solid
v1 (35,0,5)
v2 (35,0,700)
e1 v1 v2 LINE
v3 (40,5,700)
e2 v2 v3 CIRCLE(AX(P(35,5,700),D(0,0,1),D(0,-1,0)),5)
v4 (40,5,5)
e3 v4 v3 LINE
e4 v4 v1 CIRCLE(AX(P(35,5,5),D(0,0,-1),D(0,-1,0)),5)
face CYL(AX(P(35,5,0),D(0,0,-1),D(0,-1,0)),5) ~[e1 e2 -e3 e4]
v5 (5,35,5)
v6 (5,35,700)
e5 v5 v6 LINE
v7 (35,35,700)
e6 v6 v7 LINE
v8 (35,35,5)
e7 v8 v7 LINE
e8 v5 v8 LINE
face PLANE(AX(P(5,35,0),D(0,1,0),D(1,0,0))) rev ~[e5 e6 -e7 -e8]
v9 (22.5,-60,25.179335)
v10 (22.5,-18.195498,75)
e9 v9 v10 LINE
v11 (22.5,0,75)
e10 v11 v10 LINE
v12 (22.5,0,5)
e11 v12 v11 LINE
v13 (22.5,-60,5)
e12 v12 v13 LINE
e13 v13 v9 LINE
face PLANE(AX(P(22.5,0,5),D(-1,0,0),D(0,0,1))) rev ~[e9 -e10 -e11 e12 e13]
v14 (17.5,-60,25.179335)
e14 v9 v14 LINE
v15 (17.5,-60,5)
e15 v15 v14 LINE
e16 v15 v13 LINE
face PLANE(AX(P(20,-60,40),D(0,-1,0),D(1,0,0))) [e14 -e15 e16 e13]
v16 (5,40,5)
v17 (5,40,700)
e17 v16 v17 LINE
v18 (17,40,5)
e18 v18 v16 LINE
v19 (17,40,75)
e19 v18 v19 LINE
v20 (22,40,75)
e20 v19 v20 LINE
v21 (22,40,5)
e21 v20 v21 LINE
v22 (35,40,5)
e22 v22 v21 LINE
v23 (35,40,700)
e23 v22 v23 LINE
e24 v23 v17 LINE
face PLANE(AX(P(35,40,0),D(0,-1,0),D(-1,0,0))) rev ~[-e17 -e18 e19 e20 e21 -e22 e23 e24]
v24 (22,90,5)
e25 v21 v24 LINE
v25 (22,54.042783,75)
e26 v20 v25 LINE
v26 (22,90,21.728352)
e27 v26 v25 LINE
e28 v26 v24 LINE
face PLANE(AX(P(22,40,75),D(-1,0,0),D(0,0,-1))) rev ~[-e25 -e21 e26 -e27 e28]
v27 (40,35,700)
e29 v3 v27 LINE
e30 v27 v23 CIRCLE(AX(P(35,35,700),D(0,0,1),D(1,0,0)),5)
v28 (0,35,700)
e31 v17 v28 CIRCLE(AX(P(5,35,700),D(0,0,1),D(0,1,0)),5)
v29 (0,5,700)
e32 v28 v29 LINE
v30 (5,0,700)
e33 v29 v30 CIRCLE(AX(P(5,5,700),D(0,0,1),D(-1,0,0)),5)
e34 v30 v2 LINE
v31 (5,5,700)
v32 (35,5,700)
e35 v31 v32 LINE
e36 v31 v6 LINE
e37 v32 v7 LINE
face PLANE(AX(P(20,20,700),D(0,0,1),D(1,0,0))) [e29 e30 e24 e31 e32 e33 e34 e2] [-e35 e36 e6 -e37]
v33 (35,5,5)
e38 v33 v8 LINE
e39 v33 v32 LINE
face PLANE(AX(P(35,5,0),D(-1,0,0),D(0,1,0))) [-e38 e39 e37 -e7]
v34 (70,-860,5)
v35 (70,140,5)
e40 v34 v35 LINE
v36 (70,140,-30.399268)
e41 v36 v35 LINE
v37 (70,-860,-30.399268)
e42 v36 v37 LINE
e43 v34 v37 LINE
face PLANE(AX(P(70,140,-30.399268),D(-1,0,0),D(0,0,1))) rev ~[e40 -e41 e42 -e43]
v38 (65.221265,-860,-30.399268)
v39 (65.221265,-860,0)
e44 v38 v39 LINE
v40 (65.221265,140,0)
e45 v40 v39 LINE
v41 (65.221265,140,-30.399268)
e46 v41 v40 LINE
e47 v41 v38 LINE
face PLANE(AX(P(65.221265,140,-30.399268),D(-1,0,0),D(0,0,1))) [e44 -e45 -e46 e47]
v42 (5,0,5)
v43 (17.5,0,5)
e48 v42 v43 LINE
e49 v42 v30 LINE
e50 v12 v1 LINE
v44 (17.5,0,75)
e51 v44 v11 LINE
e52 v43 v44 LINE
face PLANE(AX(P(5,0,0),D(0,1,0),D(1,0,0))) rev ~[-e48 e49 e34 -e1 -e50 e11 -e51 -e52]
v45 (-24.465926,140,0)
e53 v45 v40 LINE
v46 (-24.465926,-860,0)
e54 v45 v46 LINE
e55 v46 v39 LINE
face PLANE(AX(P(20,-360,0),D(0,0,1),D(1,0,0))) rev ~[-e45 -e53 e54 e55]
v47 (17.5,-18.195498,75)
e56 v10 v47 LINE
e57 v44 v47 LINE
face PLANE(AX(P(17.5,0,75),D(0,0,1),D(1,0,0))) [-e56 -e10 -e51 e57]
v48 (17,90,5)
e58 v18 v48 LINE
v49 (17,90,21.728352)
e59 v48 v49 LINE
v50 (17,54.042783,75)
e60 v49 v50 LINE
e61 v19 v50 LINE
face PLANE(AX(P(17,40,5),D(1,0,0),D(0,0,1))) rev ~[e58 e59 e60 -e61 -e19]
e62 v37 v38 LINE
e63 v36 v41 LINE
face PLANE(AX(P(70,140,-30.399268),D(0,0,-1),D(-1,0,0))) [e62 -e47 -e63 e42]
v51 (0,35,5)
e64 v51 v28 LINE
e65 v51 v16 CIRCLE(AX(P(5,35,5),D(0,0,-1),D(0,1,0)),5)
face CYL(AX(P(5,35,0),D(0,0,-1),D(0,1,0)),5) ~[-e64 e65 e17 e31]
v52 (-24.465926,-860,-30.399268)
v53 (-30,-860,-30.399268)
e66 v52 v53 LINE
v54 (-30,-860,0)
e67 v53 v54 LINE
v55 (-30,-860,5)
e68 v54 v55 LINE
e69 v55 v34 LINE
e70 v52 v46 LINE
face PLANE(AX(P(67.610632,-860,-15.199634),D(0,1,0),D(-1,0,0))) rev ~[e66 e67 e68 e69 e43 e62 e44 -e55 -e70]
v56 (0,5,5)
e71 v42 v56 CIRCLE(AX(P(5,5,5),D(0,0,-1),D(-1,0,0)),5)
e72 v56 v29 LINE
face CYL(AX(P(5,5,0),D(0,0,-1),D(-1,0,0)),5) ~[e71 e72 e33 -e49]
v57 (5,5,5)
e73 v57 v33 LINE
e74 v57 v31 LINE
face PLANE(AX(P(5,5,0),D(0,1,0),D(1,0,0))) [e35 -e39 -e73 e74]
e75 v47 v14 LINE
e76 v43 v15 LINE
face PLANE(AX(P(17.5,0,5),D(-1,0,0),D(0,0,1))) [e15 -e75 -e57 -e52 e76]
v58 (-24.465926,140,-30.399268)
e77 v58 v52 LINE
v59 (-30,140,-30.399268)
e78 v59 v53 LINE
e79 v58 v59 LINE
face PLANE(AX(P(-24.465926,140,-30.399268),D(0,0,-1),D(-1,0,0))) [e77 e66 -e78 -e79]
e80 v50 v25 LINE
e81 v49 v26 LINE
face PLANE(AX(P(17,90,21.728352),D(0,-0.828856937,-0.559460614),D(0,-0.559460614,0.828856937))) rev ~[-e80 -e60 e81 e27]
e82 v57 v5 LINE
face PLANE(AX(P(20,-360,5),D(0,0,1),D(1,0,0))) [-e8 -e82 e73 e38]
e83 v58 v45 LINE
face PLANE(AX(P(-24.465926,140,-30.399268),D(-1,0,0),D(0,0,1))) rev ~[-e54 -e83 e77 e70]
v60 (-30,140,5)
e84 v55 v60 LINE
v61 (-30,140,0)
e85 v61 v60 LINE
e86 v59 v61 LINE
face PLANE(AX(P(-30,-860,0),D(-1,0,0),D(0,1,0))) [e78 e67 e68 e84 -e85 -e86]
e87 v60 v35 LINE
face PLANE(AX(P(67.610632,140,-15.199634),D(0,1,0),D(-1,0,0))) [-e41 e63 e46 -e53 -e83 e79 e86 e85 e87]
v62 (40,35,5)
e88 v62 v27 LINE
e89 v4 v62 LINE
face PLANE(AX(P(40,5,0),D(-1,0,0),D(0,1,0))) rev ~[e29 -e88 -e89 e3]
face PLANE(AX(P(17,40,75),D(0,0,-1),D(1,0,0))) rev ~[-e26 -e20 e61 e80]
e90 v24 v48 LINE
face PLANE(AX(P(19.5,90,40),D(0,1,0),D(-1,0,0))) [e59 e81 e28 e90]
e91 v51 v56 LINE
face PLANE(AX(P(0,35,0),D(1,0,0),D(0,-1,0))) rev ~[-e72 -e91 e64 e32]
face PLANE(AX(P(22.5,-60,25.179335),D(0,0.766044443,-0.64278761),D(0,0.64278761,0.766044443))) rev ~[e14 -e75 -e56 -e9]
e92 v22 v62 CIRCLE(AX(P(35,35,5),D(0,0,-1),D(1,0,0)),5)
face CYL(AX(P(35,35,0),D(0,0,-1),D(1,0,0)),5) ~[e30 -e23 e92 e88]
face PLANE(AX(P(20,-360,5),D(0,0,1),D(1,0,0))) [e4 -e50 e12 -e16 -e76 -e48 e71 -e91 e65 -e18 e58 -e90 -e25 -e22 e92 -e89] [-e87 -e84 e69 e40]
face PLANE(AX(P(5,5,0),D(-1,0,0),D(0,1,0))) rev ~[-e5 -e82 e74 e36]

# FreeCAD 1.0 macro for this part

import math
import FreeCAD as App
import Part
import Sketcher

V = App.Vector
Q = App.Units.Quantity


def add_polygon(sketch, points):
    """Adds a closed chain of lines whose ends are joined by coincident constraints."""
    first, n = sketch.GeometryCount, len(points)
    for a, b in zip(points, points[1:] + points[:1]):
        sketch.addGeometry(Part.LineSegment(App.Vector(*a, 0), App.Vector(*b, 0)), False)
    for i in range(n):
        sketch.addConstraint(Sketcher.Constraint("Coincident", first + i, 2, first + (i + 1) % n, 1))

doc = App.newDocument("Part")
params = doc.addObject("Spreadsheet::Sheet", "Params")
for row, (alias, value) in enumerate([
    ("sketch1_radius", "5 mm"),
    ("sketch1_width", "30 mm"),
    ("pad1_length", "700 mm"),
    ("sketch2_width", "100 mm"),
    ("sketch2_height", "1000 mm"),
    ("pad2_length", "5 mm"),
    ("pad3_length", "1000 mm"),
    ("sketch4_width", "5 mm"),
    ("sketch4_height", "70 mm"),
    ("pad4_length", "50 mm"),
    ("pocket1_length", "25 mm"),
    ("sketch6_width", "5 mm"),
    ("sketch6_height", "70 mm"),
    ("pad5_length", "60 mm"),
    ("pocket2_length", "25 mm"),
], start=1):
    params.set(f"A{row}", alias)
    params.set(f"B{row}", "=" + value)
    params.setAlias(f"B{row}", alias)

body = doc.addObject("PartDesign::Body", "Body")

sketch1 = body.newObject("Sketcher::SketchObject", "Sketch")
sketch1.AttachmentSupport = (doc.getObject("XY_Plane"), [""])
sketch1.MapMode = "FlatFace"
sketch1.addGeometry(Part.ArcOfCircle(Part.Circle(V(5, 5, 0), V(0, 0, 1), 5), math.radians(180), math.radians(270)), False)
sketch1.addGeometry(Part.LineSegment(V(5, 0, 0), V(35, 0, 0)), False)
sketch1.addGeometry(Part.ArcOfCircle(Part.Circle(V(35, 5, 0), V(0, 0, 1), 5), math.radians(-90), math.radians(0)), False)
sketch1.addGeometry(Part.LineSegment(V(40, 5, 0), V(40, 35, 0)), False)
sketch1.addGeometry(Part.ArcOfCircle(Part.Circle(V(35, 35, 0), V(0, 0, 1), 5), math.radians(0), math.radians(90)), False)
sketch1.addGeometry(Part.LineSegment(V(35, 40, 0), V(5, 40, 0)), False)
sketch1.addGeometry(Part.ArcOfCircle(Part.Circle(V(5, 35, 0), V(0, 0, 1), 5), math.radians(90), math.radians(180)), False)
sketch1.addGeometry(Part.LineSegment(V(0, 35, 0), V(0, 5, 0)), False)
add_polygon(sketch1, [(35, 5), (5, 5), (5, 35), (35, 35)])
sketch1.addConstraint([
    Sketcher.Constraint("Tangent", 0, 2, 1, 1),
    Sketcher.Constraint("Tangent", 1, 2, 2, 1),
    Sketcher.Constraint("Tangent", 2, 2, 3, 1),
    Sketcher.Constraint("Tangent", 3, 2, 4, 1),
    Sketcher.Constraint("Tangent", 4, 2, 5, 1),
    Sketcher.Constraint("Tangent", 5, 2, 6, 1),
    Sketcher.Constraint("Tangent", 6, 2, 7, 1),
    Sketcher.Constraint("Tangent", 7, 2, 0, 1),
    Sketcher.Constraint("Horizontal", 1),
    Sketcher.Constraint("Vertical", 3),
    Sketcher.Constraint("Horizontal", 5),
    Sketcher.Constraint("Vertical", 7),
    Sketcher.Constraint("Horizontal", 8),
    Sketcher.Constraint("Vertical", 9),
    Sketcher.Constraint("Horizontal", 10),
    Sketcher.Constraint("Vertical", 11),
    Sketcher.Constraint("Coincident", 8, 2, 0, 3),
    Sketcher.Constraint("Coincident", 9, 2, 6, 3),
    Sketcher.Constraint("Coincident", 10, 2, 4, 3),
    Sketcher.Constraint("Equal", 0, 2),
    Sketcher.Constraint("PointOnObject", 0, 2, -1),
    Sketcher.Constraint("PointOnObject", 6, 2, -2),
    Sketcher.Constraint("Equal", 10, 3),
    Sketcher.Constraint("Radius", 0, Q("5 mm")),
    Sketcher.Constraint("DistanceX", 1, 1, 1, 2, Q("30 mm")),
])
sketch1.setExpression("Constraints[27]", "Params.sketch1_radius")
sketch1.setExpression("Constraints[28]", "Params.sketch1_width")
pad1 = body.newObject("PartDesign::Pad", "Pad")
pad1.Profile = sketch1
pad1.setExpression("Length", "Params.pad1_length")

sketch2 = body.newObject("Sketcher::SketchObject", "Sketch001")
sketch2.AttachmentSupport = (doc.getObject("XY_Plane"), [""])
sketch2.MapMode = "FlatFace"
add_polygon(sketch2, [(-30, 140), (-30, -860), (70, -860), (70, 140)])
sketch2.addConstraint([
    Sketcher.Constraint("Vertical", 0),
    Sketcher.Constraint("Horizontal", 1),
    Sketcher.Constraint("Vertical", 2),
    Sketcher.Constraint("Horizontal", 3),
    Sketcher.Constraint("DistanceX", 1, 1, 1, 2, Q("100 mm")),
    Sketcher.Constraint("DistanceY", 0, 2, 0, 1, Q("1000 mm")),
    Sketcher.Constraint("DistanceX", 0, 2, -1, 1, Q("30 mm")),
    Sketcher.Constraint("DistanceY", 0, 2, -1, 1, Q("860 mm")),
])
sketch2.setExpression("Constraints[8]", "Params.sketch2_width")
sketch2.setExpression("Constraints[9]", "Params.sketch2_height")
pad2 = body.newObject("PartDesign::Pad", "Pad001")
pad2.Profile = sketch2
pad2.setExpression("Length", "Params.pad2_length")

sketch3 = body.newObject("Sketcher::SketchObject", "Sketch002")
sketch3.AttachmentSupport = (doc.getObject("XZ_Plane"), [""])
sketch3.MapMode = "FlatFace"
sketch3.AttachmentOffset = App.Placement(V(0, 0, -140), App.Rotation())
add_polygon(sketch3, [(70, 0), (70, -30.399268), (65.221265, -30.399268), (65.221265, 0)])
add_polygon(sketch3, [(-24.465926, 0), (-24.465926, -30.399268), (-30, -30.399268), (-30, 0)])
sketch3.addConstraint([
    Sketcher.Constraint("Vertical", 0),
    Sketcher.Constraint("Horizontal", 1),
    Sketcher.Constraint("Vertical", 2),
    Sketcher.Constraint("Horizontal", 3),
    Sketcher.Constraint("Vertical", 4),
    Sketcher.Constraint("Horizontal", 5),
    Sketcher.Constraint("Vertical", 6),
    Sketcher.Constraint("Horizontal", 7),
    Sketcher.Constraint("PointOnObject", 2, 2, -1),
    Sketcher.Constraint("PointOnObject", 6, 2, -1),
    Sketcher.Constraint("Horizontal", 1, 2, 4, 2),
    Sketcher.Constraint("DistanceX", -1, 1, 0, 2, Q("70 mm")),
    Sketcher.Constraint("DistanceX", 5, 2, -1, 1, Q("30 mm")),
    Sketcher.Constraint("DistanceY", 0, 2, 0, 1, Q("30.399268 mm")),
    Sketcher.Constraint("DistanceX", 1, 2, 1, 1, Q("4.778735 mm")),
    Sketcher.Constraint("DistanceX", 5, 2, 5, 1, Q("5.534074 mm")),
])
pad3 = body.newObject("PartDesign::Pad", "Pad002")
pad3.Profile = sketch3
pad3.setExpression("Length", "Params.pad3_length")

sketch4 = body.newObject("Sketcher::SketchObject", "Sketch003")
sketch4.AttachmentSupport = (doc.getObject("XZ_Plane"), [""])
sketch4.MapMode = "FlatFace"
sketch4.AttachmentOffset = App.Placement(V(0, 0, -40), App.Rotation())
add_polygon(sketch4, [(17, 5), (17, 75), (22, 75), (22, 5)])
sketch4.addConstraint([
    Sketcher.Constraint("Vertical", 0),
    Sketcher.Constraint("Horizontal", 1),
    Sketcher.Constraint("Vertical", 2),
    Sketcher.Constraint("Horizontal", 3),
    Sketcher.Constraint("DistanceX", 1, 1, 1, 2, Q("5 mm")),
    Sketcher.Constraint("DistanceY", 0, 1, 0, 2, Q("70 mm")),
    Sketcher.Constraint("DistanceX", -1, 1, 0, 2, Q("17 mm")),
    Sketcher.Constraint("DistanceY", -1, 1, 0, 2, Q("75 mm")),
])
sketch4.setExpression("Constraints[8]", "Params.sketch4_width")
sketch4.setExpression("Constraints[9]", "Params.sketch4_height")
pad4 = body.newObject("PartDesign::Pad", "Pad003")
pad4.Profile = sketch4
pad4.setExpression("Length", "Params.pad4_length")
pad4.Reversed = True

sketch5 = body.newObject("Sketcher::SketchObject", "Sketch004")
sketch5.AttachmentSupport = (doc.getObject("YZ_Plane"), [""])
sketch5.MapMode = "FlatFace"
sketch5.AttachmentOffset = App.Placement(V(0, 0, 17), App.Rotation())
add_polygon(sketch5, [(90, 21.728352), (54.042783, 75), (54.042783, 81.204638), (94.033502, 81.204638), (94.033502, 21.728352)])
sketch5.addConstraint([
    Sketcher.Constraint("Vertical", 1),
    Sketcher.Constraint("Horizontal", 2),
    Sketcher.Constraint("Vertical", 3),
    Sketcher.Constraint("Horizontal", 4),
    Sketcher.Constraint("DistanceY", -1, 1, 0, 2, Q("75 mm")),
    Sketcher.Constraint("DistanceX", -1, 1, 4, 2, Q("90 mm")),
    Sketcher.Constraint("DistanceX", 2, 1, 2, 2, Q("39.990719 mm")),
    Sketcher.Constraint("DistanceX", 4, 2, 4, 1, Q("4.033502 mm")),
    Sketcher.Constraint("DistanceY", 1, 1, 1, 2, Q("6.204638 mm")),
    Sketcher.Constraint("DistanceY", 3, 2, 3, 1, Q("59.476286 mm")),
])
pocket1 = body.newObject("PartDesign::Pocket", "Pocket")
pocket1.Profile = sketch5
pocket1.setExpression("Length", "Params.pocket1_length")
pocket1.Reversed = True

sketch6 = body.newObject("Sketcher::SketchObject", "Sketch005")
sketch6.AttachmentSupport = (doc.getObject("XZ_Plane"), [""])
sketch6.MapMode = "FlatFace"
add_polygon(sketch6, [(17.5, 75), (17.5, 5), (22.5, 5), (22.5, 75)])
sketch6.addConstraint([
    Sketcher.Constraint("Vertical", 0),
    Sketcher.Constraint("Horizontal", 1),
    Sketcher.Constraint("Vertical", 2),
    Sketcher.Constraint("Horizontal", 3),
    Sketcher.Constraint("DistanceX", 1, 1, 1, 2, Q("5 mm")),
    Sketcher.Constraint("DistanceY", 0, 2, 0, 1, Q("70 mm")),
    Sketcher.Constraint("DistanceY", -1, 1, 0, 2, Q("5 mm")),
    Sketcher.Constraint("DistanceX", -1, 1, 0, 2, Q("17.5 mm")),
])
sketch6.setExpression("Constraints[8]", "Params.sketch6_width")
sketch6.setExpression("Constraints[9]", "Params.sketch6_height")
pad5 = body.newObject("PartDesign::Pad", "Pad004")
pad5.Profile = sketch6
pad5.setExpression("Length", "Params.pad5_length")

sketch7 = body.newObject("Sketcher::SketchObject", "Sketch006")
sketch7.AttachmentSupport = (doc.getObject("YZ_Plane"), [""])
sketch7.MapMode = "FlatFace"
sketch7.AttachmentOffset = App.Placement(V(0, 0, 22.5), App.Rotation())
add_polygon(sketch7, [(-60, 25.179335), (-18.195498, 75), (-60, 75)])
sketch7.addConstraint([
    Sketcher.Constraint("Horizontal", 1),
    Sketcher.Constraint("Vertical", 2),
    Sketcher.Constraint("Angle", 0, Q("50 deg")),
    Sketcher.Constraint("DistanceY", -1, 1, 0, 2, Q("75 mm")),
    Sketcher.Constraint("DistanceX", 1, 2, -1, 1, Q("60 mm")),
    Sketcher.Constraint("DistanceX", 1, 2, 1, 1, Q("41.804502 mm")),
])
pocket2 = body.newObject("PartDesign::Pocket", "Pocket001")
pocket2.Profile = sketch7
pocket2.setExpression("Length", "Params.pocket2_length")

doc.recompute()
